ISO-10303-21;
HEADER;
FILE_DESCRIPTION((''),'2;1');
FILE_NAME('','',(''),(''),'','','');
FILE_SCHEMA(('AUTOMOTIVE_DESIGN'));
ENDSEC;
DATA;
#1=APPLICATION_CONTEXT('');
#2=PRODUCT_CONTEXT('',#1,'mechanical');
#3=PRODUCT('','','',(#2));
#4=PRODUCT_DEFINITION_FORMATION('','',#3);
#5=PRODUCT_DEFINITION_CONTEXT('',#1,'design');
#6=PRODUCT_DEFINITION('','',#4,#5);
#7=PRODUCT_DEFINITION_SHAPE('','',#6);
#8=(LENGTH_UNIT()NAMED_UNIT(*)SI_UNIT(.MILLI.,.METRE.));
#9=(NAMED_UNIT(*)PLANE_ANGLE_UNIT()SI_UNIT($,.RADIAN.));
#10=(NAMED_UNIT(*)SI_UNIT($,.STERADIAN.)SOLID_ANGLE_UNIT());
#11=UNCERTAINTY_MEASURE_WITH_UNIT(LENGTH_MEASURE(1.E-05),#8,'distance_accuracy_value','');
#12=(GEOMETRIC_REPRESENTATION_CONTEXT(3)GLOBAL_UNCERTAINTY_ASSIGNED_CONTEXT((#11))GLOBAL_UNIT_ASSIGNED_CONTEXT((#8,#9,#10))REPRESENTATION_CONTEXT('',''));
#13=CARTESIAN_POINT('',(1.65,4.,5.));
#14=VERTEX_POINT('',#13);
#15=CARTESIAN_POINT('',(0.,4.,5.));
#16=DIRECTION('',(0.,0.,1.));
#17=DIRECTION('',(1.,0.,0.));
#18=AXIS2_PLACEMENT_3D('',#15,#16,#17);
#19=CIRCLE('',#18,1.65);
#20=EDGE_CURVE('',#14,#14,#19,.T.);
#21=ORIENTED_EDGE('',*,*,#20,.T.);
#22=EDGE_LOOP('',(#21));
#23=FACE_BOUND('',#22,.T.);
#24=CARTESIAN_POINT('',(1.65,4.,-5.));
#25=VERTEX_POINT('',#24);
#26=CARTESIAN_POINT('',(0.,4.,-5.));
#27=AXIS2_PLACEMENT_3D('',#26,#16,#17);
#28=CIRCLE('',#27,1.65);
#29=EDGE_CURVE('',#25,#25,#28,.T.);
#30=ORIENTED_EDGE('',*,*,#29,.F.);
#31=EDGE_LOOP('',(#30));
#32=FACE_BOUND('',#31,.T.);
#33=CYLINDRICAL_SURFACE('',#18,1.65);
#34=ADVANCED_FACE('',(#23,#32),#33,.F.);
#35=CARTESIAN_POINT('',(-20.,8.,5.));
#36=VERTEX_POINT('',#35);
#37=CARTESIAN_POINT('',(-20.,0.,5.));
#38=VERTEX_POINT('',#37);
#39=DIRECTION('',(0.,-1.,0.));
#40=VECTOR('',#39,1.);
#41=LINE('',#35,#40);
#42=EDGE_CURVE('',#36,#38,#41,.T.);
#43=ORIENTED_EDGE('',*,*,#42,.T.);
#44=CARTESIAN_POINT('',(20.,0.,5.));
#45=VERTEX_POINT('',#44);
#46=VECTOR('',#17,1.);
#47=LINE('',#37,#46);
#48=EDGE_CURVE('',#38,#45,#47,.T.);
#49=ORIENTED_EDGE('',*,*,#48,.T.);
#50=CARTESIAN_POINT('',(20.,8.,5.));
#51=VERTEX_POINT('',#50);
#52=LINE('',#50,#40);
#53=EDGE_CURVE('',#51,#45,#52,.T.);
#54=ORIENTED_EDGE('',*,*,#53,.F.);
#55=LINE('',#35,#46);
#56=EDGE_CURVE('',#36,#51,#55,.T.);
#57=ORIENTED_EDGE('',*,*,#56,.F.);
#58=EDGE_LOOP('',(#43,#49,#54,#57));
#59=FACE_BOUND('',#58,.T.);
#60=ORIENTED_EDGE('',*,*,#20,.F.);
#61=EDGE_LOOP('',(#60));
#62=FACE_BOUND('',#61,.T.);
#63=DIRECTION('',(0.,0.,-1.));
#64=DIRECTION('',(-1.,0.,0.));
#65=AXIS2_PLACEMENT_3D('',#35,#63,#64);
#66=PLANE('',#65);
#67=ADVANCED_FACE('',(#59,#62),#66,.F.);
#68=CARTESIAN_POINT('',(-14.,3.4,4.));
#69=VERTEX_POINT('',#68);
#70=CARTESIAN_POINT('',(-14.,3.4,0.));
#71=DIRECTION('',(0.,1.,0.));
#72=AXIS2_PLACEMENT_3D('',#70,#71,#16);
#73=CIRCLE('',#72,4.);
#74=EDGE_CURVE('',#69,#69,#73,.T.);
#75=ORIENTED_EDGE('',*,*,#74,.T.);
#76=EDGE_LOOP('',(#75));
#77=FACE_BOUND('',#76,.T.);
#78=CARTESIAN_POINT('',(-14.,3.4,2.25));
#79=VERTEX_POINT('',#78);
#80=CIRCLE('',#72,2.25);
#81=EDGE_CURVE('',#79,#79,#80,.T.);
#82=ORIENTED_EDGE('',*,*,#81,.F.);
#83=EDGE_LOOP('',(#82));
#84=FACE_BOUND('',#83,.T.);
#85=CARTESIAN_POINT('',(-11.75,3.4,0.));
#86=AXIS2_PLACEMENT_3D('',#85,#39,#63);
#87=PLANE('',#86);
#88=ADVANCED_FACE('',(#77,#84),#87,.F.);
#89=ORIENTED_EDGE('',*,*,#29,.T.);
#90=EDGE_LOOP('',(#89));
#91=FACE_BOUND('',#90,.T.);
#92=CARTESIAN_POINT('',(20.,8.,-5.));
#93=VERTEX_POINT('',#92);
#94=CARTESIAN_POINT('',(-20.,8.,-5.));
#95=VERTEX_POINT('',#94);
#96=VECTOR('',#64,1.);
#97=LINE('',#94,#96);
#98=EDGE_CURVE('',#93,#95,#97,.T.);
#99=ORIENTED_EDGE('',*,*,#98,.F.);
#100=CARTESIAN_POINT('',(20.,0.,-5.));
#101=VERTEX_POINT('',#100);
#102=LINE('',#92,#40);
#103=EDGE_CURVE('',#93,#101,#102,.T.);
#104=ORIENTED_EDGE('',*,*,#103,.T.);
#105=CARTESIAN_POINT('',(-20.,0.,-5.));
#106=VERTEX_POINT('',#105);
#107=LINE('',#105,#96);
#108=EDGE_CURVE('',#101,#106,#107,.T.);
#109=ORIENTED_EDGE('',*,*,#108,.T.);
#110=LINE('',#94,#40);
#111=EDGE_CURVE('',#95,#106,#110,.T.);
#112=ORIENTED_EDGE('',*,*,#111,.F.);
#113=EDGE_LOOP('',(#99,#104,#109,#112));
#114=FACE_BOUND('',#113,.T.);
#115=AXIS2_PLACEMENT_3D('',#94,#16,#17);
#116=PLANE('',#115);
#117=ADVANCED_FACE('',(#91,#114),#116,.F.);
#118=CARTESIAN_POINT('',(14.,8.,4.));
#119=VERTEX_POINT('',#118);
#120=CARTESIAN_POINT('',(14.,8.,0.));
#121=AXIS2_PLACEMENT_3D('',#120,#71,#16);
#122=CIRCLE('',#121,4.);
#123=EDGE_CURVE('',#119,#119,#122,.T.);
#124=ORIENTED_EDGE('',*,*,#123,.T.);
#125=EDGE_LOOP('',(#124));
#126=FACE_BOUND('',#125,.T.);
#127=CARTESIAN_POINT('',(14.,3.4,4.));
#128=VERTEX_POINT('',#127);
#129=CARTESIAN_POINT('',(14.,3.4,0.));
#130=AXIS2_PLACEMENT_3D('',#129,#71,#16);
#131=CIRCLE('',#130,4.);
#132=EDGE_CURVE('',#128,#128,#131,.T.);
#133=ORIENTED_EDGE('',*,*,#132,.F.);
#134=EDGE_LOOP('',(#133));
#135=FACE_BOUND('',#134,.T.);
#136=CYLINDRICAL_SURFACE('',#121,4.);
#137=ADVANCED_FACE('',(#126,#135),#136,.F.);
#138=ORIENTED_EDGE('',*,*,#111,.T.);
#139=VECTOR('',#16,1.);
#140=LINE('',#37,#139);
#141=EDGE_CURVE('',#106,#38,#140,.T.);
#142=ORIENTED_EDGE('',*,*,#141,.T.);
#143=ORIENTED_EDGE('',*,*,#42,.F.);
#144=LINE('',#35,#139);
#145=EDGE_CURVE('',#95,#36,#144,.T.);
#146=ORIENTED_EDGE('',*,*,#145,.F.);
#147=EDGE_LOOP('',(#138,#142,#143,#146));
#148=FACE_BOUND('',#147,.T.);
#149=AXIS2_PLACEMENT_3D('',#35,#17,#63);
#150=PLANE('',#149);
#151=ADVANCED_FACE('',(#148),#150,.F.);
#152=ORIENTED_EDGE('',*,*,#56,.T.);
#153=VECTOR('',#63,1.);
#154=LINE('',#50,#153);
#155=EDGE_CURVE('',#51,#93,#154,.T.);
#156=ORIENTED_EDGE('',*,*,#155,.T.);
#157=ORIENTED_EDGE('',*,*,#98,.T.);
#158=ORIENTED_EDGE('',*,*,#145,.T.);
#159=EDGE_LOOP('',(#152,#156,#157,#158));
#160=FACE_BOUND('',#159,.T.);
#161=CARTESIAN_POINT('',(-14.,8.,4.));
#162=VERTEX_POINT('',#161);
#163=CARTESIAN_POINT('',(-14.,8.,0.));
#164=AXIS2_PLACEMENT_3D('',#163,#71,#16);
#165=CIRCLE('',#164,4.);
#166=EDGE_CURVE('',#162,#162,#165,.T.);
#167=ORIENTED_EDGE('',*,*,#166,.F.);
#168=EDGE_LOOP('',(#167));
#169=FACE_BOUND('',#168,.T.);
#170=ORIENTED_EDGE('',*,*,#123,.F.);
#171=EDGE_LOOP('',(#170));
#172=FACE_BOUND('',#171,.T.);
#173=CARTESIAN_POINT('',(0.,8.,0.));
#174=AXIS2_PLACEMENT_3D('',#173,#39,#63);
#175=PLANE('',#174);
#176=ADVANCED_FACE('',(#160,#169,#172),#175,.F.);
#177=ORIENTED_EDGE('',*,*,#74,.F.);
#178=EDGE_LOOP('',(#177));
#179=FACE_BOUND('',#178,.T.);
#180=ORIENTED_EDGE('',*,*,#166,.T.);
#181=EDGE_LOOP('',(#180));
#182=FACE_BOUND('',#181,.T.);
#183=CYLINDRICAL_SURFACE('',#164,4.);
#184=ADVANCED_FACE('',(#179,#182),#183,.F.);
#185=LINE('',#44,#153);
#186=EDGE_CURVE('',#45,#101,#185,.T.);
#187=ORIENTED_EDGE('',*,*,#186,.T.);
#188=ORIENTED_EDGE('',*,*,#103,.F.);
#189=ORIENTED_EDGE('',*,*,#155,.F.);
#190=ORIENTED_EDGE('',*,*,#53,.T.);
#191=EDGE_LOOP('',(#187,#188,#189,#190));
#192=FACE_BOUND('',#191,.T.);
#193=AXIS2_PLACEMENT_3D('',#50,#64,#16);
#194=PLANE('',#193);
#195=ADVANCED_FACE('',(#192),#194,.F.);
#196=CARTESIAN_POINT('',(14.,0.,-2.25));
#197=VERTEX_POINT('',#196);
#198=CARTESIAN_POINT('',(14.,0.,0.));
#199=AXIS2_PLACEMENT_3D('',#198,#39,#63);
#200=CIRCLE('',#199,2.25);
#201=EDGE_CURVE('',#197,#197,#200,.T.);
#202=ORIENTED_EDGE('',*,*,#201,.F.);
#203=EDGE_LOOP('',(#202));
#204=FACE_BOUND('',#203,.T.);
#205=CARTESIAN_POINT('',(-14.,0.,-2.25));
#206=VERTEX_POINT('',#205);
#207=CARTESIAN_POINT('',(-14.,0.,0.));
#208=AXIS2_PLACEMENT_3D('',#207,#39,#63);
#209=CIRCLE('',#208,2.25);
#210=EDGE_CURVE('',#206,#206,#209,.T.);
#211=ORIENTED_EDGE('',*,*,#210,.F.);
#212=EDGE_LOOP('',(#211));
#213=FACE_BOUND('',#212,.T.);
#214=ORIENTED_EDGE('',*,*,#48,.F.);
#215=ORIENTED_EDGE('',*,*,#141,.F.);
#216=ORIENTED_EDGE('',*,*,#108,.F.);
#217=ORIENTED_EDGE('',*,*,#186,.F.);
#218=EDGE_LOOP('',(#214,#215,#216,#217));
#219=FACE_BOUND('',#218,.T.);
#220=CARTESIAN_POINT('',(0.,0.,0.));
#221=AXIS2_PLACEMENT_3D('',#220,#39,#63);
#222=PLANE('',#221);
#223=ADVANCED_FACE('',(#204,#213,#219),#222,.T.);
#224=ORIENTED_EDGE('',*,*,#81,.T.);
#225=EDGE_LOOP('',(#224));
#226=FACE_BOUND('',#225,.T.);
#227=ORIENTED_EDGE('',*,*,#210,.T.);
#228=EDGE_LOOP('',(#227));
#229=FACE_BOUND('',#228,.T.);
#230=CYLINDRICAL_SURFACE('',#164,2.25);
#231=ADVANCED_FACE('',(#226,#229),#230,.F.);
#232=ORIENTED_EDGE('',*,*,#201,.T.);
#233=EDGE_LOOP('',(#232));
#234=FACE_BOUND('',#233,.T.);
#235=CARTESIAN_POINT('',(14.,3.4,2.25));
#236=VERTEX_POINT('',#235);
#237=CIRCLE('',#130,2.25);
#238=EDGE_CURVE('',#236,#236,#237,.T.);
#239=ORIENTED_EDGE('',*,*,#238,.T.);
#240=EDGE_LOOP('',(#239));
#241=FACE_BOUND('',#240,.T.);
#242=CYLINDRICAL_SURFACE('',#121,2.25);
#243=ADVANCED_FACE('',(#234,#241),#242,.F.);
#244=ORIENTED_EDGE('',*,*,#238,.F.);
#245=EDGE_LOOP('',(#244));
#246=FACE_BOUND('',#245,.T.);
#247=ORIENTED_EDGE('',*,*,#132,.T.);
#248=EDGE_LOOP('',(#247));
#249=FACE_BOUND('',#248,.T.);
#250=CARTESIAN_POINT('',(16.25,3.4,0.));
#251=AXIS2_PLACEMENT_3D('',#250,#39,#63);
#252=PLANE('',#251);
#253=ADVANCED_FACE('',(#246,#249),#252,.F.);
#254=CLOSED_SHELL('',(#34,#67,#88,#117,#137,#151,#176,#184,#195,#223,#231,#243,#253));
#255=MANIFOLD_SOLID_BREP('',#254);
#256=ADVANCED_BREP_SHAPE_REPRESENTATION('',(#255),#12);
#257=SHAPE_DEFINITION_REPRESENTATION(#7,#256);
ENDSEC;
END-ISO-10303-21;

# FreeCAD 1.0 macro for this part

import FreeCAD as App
import Part
import Sketcher

V = App.Vector


def add_polygon(sketch, points):
    """Adds a closed chain of lines whose ends are joined by coincident constraints."""
    first, n = sketch.GeometryCount, len(points)
    for a, b in zip(points, points[1:] + points[:1]):
        sketch.addGeometry(Part.LineSegment(App.Vector(*a, 0), App.Vector(*b, 0)), False)
    for i in range(n):
        sketch.addConstraint(Sketcher.Constraint("Coincident", first + i, 2, first + (i + 1) % n, 1))

doc = App.newDocument("Part")
body = doc.addObject("PartDesign::Body", "Body")

# Sketch on XZ plane
sketch1 = body.newObject("Sketcher::SketchObject", "Sketch")
sketch1.AttachmentSupport = (doc.getObject("XZ_Plane"), [""])
sketch1.MapMode = "FlatFace"
add_polygon(sketch1, [(-20, -5), (-20, 5), (20, 5), (20, -5)])  # lines 0-3
sketch1.addConstraint(Sketcher.Constraint("Vertical", 0))
sketch1.addConstraint(Sketcher.Constraint("Horizontal", 1))
sketch1.addConstraint(Sketcher.Constraint("Vertical", 2))
sketch1.addConstraint(Sketcher.Constraint("Horizontal", 3))
sketch1.addConstraint(Sketcher.Constraint("Symmetric", 0, 2, 2, 2, -1, 1))
sketch1.addConstraint(Sketcher.Constraint("DistanceX", 1, 1, 1, 2, 40.0))
sketch1.addConstraint(Sketcher.Constraint("DistanceY", 0, 1, 0, 2, 10.0))
pad1 = body.newObject("PartDesign::Pad", "Pad")
pad1.Profile = sketch1
pad1.Length = 8
pad1.Reversed = True

# Sketch on XZ plane
sketch2 = body.newObject("Sketcher::SketchObject", "Sketch001")
sketch2.AttachmentSupport = (doc.getObject("XZ_Plane"), [""])
sketch2.MapMode = "FlatFace"
sketch2.AttachmentOffset = App.Placement(V(0, 0, -8), App.Rotation())
sketch2.addGeometry(Part.Circle(V(14, 0, 0), V(0, 0, 1), 2.2), False)
sketch2.addGeometry(Part.Circle(V(-14, 0, 0), V(0, 0, 1), 2.2), False)
sketch2.addConstraint(Sketcher.Constraint("Equal", 0, 1))
sketch2.addConstraint(Sketcher.Constraint("Symmetric", 0, 3, 1, 3, -1, 1))
sketch2.addConstraint(Sketcher.Constraint("PointOnObject", 0, 3, -1))
sketch2.addConstraint(Sketcher.Constraint("Diameter", 0, 4.5))
sketch2.addConstraint(Sketcher.Constraint("DistanceX", -1, 1, 0, 3, 14.0))
doc.recompute()
hole = body.newObject("PartDesign::Hole", "Hole")
hole.Profile = sketch2
hole.ThreadType = "None"
hole.Diameter = 4.5
hole.DepthType = "ThroughAll"
hole.HoleCutType = "Counterbore"
hole.HoleCutDiameter = 8
hole.HoleCutDepth = 4.6
hole.Reversed = True

# Sketch on XY plane
sketch3 = body.newObject("Sketcher::SketchObject", "Sketch002")
sketch3.AttachmentSupport = (doc.getObject("XY_Plane"), [""])
sketch3.MapMode = "FlatFace"
sketch3.AttachmentOffset = App.Placement(V(0, 0, 5), App.Rotation())
sketch3.addGeometry(Part.Circle(V(0, 4, 0), V(0, 0, 1), 1.6), False)
sketch3.addConstraint(Sketcher.Constraint("PointOnObject", 0, 3, -2))
sketch3.addConstraint(Sketcher.Constraint("Diameter", 0, 3.3))
sketch3.addConstraint(Sketcher.Constraint("DistanceY", -1, 1, 0, 3, 4.0))
doc.recompute()
hole2 = body.newObject("PartDesign::Hole", "Hole001")
hole2.Profile = sketch3
hole2.ThreadType = "None"
hole2.Diameter = 3.3
hole2.DepthType = "ThroughAll"

doc.recompute()
